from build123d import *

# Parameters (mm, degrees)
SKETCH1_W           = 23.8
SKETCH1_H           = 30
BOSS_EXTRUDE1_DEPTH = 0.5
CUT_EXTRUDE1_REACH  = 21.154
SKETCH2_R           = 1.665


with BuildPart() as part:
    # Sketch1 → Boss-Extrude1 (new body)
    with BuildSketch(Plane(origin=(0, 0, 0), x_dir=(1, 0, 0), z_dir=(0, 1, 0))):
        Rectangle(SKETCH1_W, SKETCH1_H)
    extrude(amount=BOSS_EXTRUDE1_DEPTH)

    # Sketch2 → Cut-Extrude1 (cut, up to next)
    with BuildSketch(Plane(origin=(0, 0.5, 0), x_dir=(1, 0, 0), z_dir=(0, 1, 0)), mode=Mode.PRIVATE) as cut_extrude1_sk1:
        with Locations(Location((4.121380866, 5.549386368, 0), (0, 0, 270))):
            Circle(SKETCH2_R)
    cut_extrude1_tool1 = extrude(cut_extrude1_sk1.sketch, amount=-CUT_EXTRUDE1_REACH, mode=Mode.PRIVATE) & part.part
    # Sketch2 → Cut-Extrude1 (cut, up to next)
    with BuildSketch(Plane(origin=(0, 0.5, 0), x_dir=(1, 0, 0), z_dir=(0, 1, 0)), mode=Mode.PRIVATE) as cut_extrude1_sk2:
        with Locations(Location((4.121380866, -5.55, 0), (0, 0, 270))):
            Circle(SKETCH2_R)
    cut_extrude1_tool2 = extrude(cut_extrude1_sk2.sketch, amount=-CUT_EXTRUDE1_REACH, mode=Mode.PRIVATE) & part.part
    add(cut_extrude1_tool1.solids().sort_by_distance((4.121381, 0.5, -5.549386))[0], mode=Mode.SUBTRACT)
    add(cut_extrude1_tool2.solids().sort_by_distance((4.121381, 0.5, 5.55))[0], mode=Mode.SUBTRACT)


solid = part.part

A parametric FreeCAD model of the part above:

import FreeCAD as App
import Part
import Sketcher
from FreeCAD import Vector
Q = App.Units.Quantity

doc = App.newDocument("Part")
body = doc.addObject("PartDesign::Body", "Body")

sketch1 = doc.addObject("Sketcher::SketchObject", "Sketch")
body.addObject(sketch1)
sketch1.AttachmentSupport = (doc.XZ_Plane, [""])
sketch1.MapMode = "FlatFace"
sketch1.addGeometry(Part.LineSegment(Vector(-12, -15, 0), Vector(-12, 15, 0)), False)
sketch1.addGeometry(Part.LineSegment(Vector(-12, 15, 0), Vector(12, 15, 0)), False)
sketch1.addGeometry(Part.LineSegment(Vector(12, 15, 0), Vector(12, -15, 0)), False)
sketch1.addGeometry(Part.LineSegment(Vector(12, -15, 0), Vector(-12, -15, 0)), False)
sketch1.addConstraint(Sketcher.Constraint("Coincident", 0, 2, 1, 1))
sketch1.addConstraint(Sketcher.Constraint("Coincident", 1, 2, 2, 1))
sketch1.addConstraint(Sketcher.Constraint("Coincident", 2, 2, 3, 1))
sketch1.addConstraint(Sketcher.Constraint("Coincident", 3, 2, 0, 1))
sketch1.addConstraint(Sketcher.Constraint("Vertical", 0))
sketch1.addConstraint(Sketcher.Constraint("Horizontal", 1))
sketch1.addConstraint(Sketcher.Constraint("Vertical", 2))
sketch1.addConstraint(Sketcher.Constraint("Horizontal", 3))
sketch1.addConstraint(Sketcher.Constraint("Symmetric", 0, 2, 2, 2, -1, 1))
sketch1.addConstraint(Sketcher.Constraint("DistanceY", 0, 1, 0, 2, Q("30 mm")))
sketch1.addConstraint(Sketcher.Constraint("DistanceX", 1, 1, 1, 2, Q("23.8 mm")))
pad1 = doc.addObject("PartDesign::Pad", "Pad")
body.addObject(pad1)
pad1.Profile = sketch1
pad1.Length = 0.5
pad1.Reversed = True

sketch2 = doc.addObject("Sketcher::SketchObject", "Sketch001")
body.addObject(sketch2)
sketch2.AttachmentSupport = (doc.XZ_Plane, [""])
sketch2.MapMode = "FlatFace"
sketch2.AttachmentOffset = App.Placement(Vector(0, 0, -0.5), App.Rotation())
sketch2.addGeometry(Part.Circle(Vector(4.1, -5.5, 0), Vector(0, 0, 1), 1.7), False)
sketch2.addConstraint(Sketcher.Constraint("Diameter", 0, Q("3.33 mm")))
sketch2.addConstraint(Sketcher.Constraint("DistanceX", -1, 1, 0, 3, Q("4.121381 mm")))
sketch2.addConstraint(Sketcher.Constraint("DistanceY", 0, 3, -1, 1, Q("5.549386 mm")))
pocket1 = doc.addObject("PartDesign::Pocket", "Pocket")
body.addObject(pocket1)
pocket1.Profile = sketch2
pocket1.Type = "UpToFirst"
pocket1.Reversed = True

sketch3 = doc.addObject("Sketcher::SketchObject", "Sketch002")
body.addObject(sketch3)
sketch3.AttachmentSupport = (doc.XZ_Plane, [""])
sketch3.MapMode = "FlatFace"
sketch3.AttachmentOffset = App.Placement(Vector(0, 0, -0.5), App.Rotation())
sketch3.addGeometry(Part.Circle(Vector(4.1, 5.5, 0), Vector(0, 0, 1), 1.7), False)
sketch3.addConstraint(Sketcher.Constraint("Diameter", 0, Q("3.33 mm")))
sketch3.addConstraint(Sketcher.Constraint("DistanceY", -1, 1, 0, 3, Q("5.55 mm")))
sketch3.addConstraint(Sketcher.Constraint("DistanceX", -1, 1, 0, 3, Q("4.121381 mm")))
pocket2 = doc.addObject("PartDesign::Pocket", "Pocket001")
body.addObject(pocket2)
pocket2.Profile = sketch3
pocket2.Type = "UpToFirst"
pocket2.Reversed = True

doc.recompute()
